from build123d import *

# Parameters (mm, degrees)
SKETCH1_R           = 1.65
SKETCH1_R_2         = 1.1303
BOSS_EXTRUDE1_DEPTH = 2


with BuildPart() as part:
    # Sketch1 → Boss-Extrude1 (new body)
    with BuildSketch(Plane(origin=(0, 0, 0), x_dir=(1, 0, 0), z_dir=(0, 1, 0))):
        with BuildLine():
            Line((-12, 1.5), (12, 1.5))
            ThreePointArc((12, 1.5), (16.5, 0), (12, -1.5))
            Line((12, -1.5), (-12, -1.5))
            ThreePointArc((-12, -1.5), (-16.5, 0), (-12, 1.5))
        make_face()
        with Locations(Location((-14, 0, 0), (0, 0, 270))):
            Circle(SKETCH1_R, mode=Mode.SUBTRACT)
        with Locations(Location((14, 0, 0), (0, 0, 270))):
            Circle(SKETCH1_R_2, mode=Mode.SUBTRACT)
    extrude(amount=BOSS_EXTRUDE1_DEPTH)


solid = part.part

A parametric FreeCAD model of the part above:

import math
import FreeCAD as App
import Part
import Sketcher

V = App.Vector
Q = App.Units.Quantity

doc = App.newDocument("Part")
body = doc.addObject("PartDesign::Body", "Body")

sketch1 = body.newObject("Sketcher::SketchObject", "Sketch")
sketch1.AttachmentSupport = (doc.getObject("XZ_Plane"), [""])
sketch1.MapMode = "FlatFace"
sketch1.addGeometry([
    Part.LineSegment(V(12, -1.5, 0), V(-12, -1.5, 0)),
    Part.ArcOfCircle(Part.Circle(V(-14, 0, 0), V(0, 0, 1), 2.5), math.radians(36.869898), math.radians(323.130102)),
    Part.LineSegment(V(-12, 1.5, 0), V(12, 1.5, 0)),
    Part.ArcOfCircle(Part.Circle(V(14, 0, 0), V(0, 0, 1), 2.5), math.radians(-143.130102), math.radians(143.130102)),
    Part.Circle(V(14, 0, 0), V(0, 0, 1), 1.1303),
    Part.Circle(V(-14, 0, 0), V(0, 0, 1), 1.65),
], False)
sketch1.addConstraint([
    Sketcher.Constraint("Coincident", 0, 2, 1, 2),
    Sketcher.Constraint("Coincident", 1, 1, 2, 1),
    Sketcher.Constraint("Coincident", 2, 2, 3, 2),
    Sketcher.Constraint("Coincident", 3, 1, 0, 1),
    Sketcher.Constraint("Horizontal", 0),
    Sketcher.Constraint("Horizontal", 2),
    Sketcher.Constraint("Coincident", 4, 3, 3, 3),
    Sketcher.Constraint("Coincident", 5, 3, 1, 3),
    Sketcher.Constraint("Equal", 1, 3),
    Sketcher.Constraint("Symmetric", 1, 3, 3, 3, -1, 1),
    Sketcher.Constraint("Symmetric", 0, 2, 1, 1, -1),
    Sketcher.Constraint("Diameter", 5, Q("3.3 mm")),
    Sketcher.Constraint("Radius", 1, Q("2.5 mm")),
    Sketcher.Constraint("DistanceX", 0, 2, 0, 1, Q("24 mm")),
    Sketcher.Constraint("DistanceX", 1, 3, -1, 1, Q("14 mm")),
    Sketcher.Constraint("Diameter", 4, Q("2.2606 mm")),
])
pad1 = body.newObject("PartDesign::Pad", "Pad")
pad1.Profile = sketch1
pad1.Length = 2
pad1.Reversed = True

doc.recompute()
